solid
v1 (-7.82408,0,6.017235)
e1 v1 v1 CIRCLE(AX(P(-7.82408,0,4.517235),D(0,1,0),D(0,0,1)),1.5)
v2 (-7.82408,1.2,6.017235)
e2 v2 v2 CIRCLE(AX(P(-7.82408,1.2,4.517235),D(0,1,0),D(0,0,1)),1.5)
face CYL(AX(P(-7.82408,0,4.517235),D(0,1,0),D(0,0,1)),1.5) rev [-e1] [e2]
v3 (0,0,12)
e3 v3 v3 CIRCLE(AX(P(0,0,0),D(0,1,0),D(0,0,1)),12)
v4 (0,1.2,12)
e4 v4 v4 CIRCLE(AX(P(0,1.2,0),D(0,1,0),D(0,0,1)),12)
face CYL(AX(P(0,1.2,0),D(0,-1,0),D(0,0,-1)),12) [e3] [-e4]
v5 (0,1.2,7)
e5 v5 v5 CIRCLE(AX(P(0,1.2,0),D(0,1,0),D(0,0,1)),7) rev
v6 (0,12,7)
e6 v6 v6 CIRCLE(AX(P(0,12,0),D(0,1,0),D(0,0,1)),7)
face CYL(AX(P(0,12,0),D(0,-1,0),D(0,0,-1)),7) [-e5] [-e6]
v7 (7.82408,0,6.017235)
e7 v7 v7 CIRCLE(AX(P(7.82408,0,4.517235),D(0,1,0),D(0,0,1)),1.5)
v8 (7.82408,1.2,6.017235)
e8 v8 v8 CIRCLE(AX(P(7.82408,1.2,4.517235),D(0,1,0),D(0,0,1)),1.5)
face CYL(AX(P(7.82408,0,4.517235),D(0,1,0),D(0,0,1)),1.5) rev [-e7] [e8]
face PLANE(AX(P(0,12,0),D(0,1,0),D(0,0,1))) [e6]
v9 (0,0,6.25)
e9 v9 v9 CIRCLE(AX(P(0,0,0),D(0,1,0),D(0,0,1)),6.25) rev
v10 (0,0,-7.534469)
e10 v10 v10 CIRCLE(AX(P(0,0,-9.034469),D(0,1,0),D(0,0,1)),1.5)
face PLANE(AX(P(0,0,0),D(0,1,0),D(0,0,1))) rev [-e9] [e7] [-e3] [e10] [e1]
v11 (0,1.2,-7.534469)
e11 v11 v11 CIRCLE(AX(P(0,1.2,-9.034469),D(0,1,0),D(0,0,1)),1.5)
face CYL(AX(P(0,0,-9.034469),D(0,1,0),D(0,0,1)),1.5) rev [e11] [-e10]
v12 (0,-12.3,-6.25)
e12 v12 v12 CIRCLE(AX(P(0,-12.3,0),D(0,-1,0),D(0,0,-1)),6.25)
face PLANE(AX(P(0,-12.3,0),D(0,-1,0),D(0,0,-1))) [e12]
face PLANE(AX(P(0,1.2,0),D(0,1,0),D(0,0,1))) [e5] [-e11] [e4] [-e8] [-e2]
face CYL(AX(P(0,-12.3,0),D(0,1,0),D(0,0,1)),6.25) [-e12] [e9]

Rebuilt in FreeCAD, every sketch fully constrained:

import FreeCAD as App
import Part
import Sketcher

V = App.Vector

doc = App.newDocument("Part")
body = doc.addObject("PartDesign::Body", "Body")

# Sketch on XZ plane
sketch1 = body.newObject("Sketcher::SketchObject", "Sketch")
sketch1.AttachmentSupport = (doc.getObject("XZ_Plane"), [""])
sketch1.MapMode = "FlatFace"
sketch1.addGeometry([
    Part.Circle(V(0, 0, 0), V(0, 0, 1), 12),
    Part.Circle(V(0, 0, 0), V(0, 0, 1), 2.5),
], False)
sketch1.addConstraint([
    Sketcher.Constraint("Coincident", 0, 3, -1, 1),
    Sketcher.Constraint("Coincident", 1, 3, -1, 1),
    Sketcher.Constraint("Diameter", 0, 24.0),
    Sketcher.Constraint("Diameter", 1, 5.0),
])
pad1 = body.newObject("PartDesign::Pad", "Pad")
pad1.Profile = sketch1
pad1.Length = 1.2
pad1.Reversed = True

# Sketch on XZ plane
sketch2 = body.newObject("Sketcher::SketchObject", "Sketch001")
sketch2.AttachmentSupport = (doc.getObject("XZ_Plane"), [""])
sketch2.MapMode = "FlatFace"
sketch2.AttachmentOffset = App.Placement(V(0, 0, -1.2), App.Rotation())
sketch2.addGeometry([
    Part.Circle(V(0, -9, 0), V(0, 0, 1), 1.5),
    Part.Circle(V(7.8, 4.5, 0), V(0, 0, 1), 1.5),
    Part.Circle(V(-7.8, 4.5, 0), V(0, 0, 1), 1.5),
], False)
sketch2.addConstraint([
    Sketcher.Constraint("Equal", 0, 1),
    Sketcher.Constraint("Equal", 1, 2),
    Sketcher.Constraint("Symmetric", 1, 3, 2, 3, -2),
    Sketcher.Constraint("PointOnObject", 0, 3, -2),
    Sketcher.Constraint("Diameter", 0, 3.0),
    Sketcher.Constraint("DistanceY", 0, 3, -1, 1, 9.034469),
    Sketcher.Constraint("DistanceX", -1, 1, 1, 3, 7.82408),
    Sketcher.Constraint("DistanceY", -1, 1, 1, 3, 4.517235),
])
pocket1 = body.newObject("PartDesign::Pocket", "Pocket")
pocket1.Profile = sketch2
pocket1.Length = 1.2
pocket1.Reversed = True

# Sketch on XZ plane
sketch3 = body.newObject("Sketcher::SketchObject", "Sketch002")
sketch3.AttachmentSupport = (doc.getObject("XZ_Plane"), [""])
sketch3.MapMode = "FlatFace"
sketch3.addGeometry(Part.Circle(V(0, 0, 0), V(0, 0, 1), 6), False)
sketch3.addConstraint([
    Sketcher.Constraint("Coincident", 0, 3, -1, 1),
    Sketcher.Constraint("Diameter", 0, 12.5),
])
pad2 = body.newObject("PartDesign::Pad", "Pad001")
pad2.Profile = sketch3
pad2.Length = 12.3

# Sketch on XZ plane
sketch4 = body.newObject("Sketcher::SketchObject", "Sketch003")
sketch4.AttachmentSupport = (doc.getObject("XZ_Plane"), [""])
sketch4.MapMode = "FlatFace"
sketch4.addGeometry(Part.Circle(V(0, 0, 0), V(0, 0, 1), 7), False)
sketch4.addConstraint([
    Sketcher.Constraint("Coincident", 0, 3, -1, 1),
    Sketcher.Constraint("Diameter", 0, 14.0),
])
pad3 = body.newObject("PartDesign::Pad", "Pad002")
pad3.Profile = sketch4
pad3.Length = 12
pad3.Reversed = True

doc.recompute()
